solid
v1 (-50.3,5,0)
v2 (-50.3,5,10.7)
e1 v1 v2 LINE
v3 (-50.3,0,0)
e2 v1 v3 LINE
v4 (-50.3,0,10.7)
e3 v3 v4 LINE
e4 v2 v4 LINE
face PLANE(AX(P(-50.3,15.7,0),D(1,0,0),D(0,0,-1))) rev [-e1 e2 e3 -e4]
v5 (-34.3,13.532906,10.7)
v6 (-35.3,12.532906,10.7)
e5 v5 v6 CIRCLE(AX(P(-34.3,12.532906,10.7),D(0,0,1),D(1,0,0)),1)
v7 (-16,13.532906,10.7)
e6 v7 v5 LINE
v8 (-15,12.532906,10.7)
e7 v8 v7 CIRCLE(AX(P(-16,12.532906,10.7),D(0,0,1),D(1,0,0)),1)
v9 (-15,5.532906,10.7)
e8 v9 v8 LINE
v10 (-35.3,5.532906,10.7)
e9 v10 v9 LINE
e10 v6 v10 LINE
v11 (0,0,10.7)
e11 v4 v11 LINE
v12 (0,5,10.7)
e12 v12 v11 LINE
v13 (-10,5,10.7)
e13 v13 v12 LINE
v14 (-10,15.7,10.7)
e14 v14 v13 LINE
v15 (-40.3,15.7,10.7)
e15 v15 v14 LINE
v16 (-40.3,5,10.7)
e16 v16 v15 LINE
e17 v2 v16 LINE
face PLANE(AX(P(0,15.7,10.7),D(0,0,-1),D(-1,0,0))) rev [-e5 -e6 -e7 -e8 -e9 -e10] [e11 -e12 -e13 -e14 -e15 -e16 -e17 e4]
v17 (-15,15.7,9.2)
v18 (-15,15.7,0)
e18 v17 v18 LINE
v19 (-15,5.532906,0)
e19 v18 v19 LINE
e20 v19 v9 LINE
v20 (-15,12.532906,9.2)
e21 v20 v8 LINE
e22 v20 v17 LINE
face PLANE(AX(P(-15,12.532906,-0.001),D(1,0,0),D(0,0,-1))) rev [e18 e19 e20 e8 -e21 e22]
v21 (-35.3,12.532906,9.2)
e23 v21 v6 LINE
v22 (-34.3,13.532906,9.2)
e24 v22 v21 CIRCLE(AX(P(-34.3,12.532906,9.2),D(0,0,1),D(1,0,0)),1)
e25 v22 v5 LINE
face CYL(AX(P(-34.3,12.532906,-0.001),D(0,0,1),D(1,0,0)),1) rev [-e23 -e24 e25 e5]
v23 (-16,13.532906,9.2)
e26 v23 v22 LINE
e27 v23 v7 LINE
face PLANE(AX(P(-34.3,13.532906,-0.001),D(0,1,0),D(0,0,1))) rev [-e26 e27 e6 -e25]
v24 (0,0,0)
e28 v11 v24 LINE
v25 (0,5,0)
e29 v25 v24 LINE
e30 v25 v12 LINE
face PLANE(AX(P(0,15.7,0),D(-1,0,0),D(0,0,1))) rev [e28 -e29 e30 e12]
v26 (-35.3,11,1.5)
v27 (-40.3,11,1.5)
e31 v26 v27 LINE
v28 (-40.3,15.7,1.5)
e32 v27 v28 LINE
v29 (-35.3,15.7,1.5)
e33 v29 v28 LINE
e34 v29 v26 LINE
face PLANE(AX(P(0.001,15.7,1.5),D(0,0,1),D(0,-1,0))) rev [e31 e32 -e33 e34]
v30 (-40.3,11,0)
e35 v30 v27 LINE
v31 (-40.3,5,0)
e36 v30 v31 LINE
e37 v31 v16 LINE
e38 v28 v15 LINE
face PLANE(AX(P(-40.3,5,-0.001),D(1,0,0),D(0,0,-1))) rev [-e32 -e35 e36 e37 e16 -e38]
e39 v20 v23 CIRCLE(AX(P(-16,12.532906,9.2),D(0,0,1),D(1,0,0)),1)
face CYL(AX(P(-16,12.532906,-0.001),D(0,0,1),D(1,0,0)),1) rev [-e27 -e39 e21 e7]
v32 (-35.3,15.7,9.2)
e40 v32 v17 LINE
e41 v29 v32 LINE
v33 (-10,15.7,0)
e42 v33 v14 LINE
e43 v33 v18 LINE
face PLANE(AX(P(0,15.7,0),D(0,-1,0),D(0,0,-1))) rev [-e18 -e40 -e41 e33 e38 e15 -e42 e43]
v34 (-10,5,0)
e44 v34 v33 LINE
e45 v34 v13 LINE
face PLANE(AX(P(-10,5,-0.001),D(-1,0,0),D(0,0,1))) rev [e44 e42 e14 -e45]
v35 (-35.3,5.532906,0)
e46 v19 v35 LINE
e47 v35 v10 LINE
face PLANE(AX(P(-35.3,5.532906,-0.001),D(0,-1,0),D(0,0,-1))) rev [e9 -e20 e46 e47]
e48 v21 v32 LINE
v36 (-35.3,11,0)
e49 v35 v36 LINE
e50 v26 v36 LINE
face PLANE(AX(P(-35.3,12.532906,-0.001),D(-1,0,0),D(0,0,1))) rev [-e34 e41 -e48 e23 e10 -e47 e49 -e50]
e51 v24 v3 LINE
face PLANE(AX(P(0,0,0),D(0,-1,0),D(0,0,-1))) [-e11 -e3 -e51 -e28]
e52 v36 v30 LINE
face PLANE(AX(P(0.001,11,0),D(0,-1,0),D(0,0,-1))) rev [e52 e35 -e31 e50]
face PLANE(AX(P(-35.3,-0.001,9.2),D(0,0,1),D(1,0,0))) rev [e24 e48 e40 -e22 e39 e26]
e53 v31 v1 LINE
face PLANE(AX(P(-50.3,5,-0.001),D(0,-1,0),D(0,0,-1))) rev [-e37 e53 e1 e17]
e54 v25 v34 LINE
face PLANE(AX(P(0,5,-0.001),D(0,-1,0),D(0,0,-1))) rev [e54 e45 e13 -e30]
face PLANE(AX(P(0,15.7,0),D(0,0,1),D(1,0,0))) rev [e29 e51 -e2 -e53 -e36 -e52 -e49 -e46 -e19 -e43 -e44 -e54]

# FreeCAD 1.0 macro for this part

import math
import FreeCAD as App
import Part
import Sketcher

V = App.Vector


def add_polygon(sketch, points):
    """Adds a closed chain of lines whose ends are joined by coincident constraints."""
    first, n = sketch.GeometryCount, len(points)
    for a, b in zip(points, points[1:] + points[:1]):
        sketch.addGeometry(Part.LineSegment(App.Vector(*a, 0), App.Vector(*b, 0)), False)
    for i in range(n):
        sketch.addConstraint(Sketcher.Constraint("Coincident", first + i, 2, first + (i + 1) % n, 1))

doc = App.newDocument("Part")
body = doc.addObject("PartDesign::Body", "Body")

sketch1 = body.newObject("Sketcher::SketchObject", "Sketch")
sketch1.AttachmentSupport = (doc.getObject("XZ_Plane"), [""])
sketch1.MapMode = "FlatFace"
add_polygon(sketch1, [(-50.3, 0), (-50.3, 10.7), (0, 10.7), (0, 0)])
sketch1.addConstraint([
    Sketcher.Constraint("Vertical", 0),
    Sketcher.Constraint("Horizontal", 1),
    Sketcher.Constraint("Vertical", 2),
    Sketcher.Constraint("Horizontal", 3),
    Sketcher.Constraint("Coincident", 2, 2, -1, 1),
    Sketcher.Constraint("DistanceX", 1, 1, 1, 2, 50.3),
    Sketcher.Constraint("DistanceY", 0, 1, 0, 2, 10.7),
])
pad1 = body.newObject("PartDesign::Pad", "Pad")
pad1.Profile = sketch1
pad1.Length = 15.7
pad1.Reversed = True

sketch2 = body.newObject("Sketcher::SketchObject", "Sketch001")
sketch2.AttachmentSupport = (doc.getObject("XY_Plane"), [""])
sketch2.MapMode = "FlatFace"
sketch2.AttachmentOffset = App.Placement(V(0, 0, 10.7), App.Rotation())
add_polygon(sketch2, [(-50.3, 15.7), (-50.3, 5), (-40.3, 5), (-40.3, 15.7)])
sketch2.addConstraint([
    Sketcher.Constraint("Vertical", 0),
    Sketcher.Constraint("Horizontal", 1),
    Sketcher.Constraint("Vertical", 2),
    Sketcher.Constraint("Horizontal", 3),
    Sketcher.Constraint("DistanceX", 1, 1, 1, 2, 10.0),
    Sketcher.Constraint("DistanceY", 0, 2, 0, 1, 10.7),
    Sketcher.Constraint("DistanceY", -1, 1, 0, 2, 5.0),
    Sketcher.Constraint("DistanceX", 0, 2, -1, 1, 50.3),
])
pocket1 = body.newObject("PartDesign::Pocket", "Pocket")
pocket1.Profile = sketch2
pocket1.Type = "UpToFirst"

sketch3 = body.newObject("Sketcher::SketchObject", "Sketch002")
sketch3.AttachmentSupport = (doc.getObject("XY_Plane"), [""])
sketch3.MapMode = "FlatFace"
sketch3.AttachmentOffset = App.Placement(V(0, 0, 10.7), App.Rotation())
sketch3.addGeometry([
    Part.LineSegment(V(-35.3, 5.532906, 0), V(-15, 5.532906, 0)),
    Part.LineSegment(V(-15, 5.532906, 0), V(-15, 12.532906, 0)),
    Part.ArcOfCircle(Part.Circle(V(-16, 12.532906, 0), V(0, 0, 1), 1), math.radians(0), math.radians(90)),
    Part.LineSegment(V(-16, 13.532906, 0), V(-34.3, 13.532906, 0)),
    Part.ArcOfCircle(Part.Circle(V(-34.3, 12.532906, 0), V(0, 0, 1), 1), math.radians(90), math.radians(180)),
    Part.LineSegment(V(-35.3, 12.532906, 0), V(-35.3, 5.532906, 0)),
], False)
sketch3.addConstraint([
    Sketcher.Constraint("Coincident", 0, 2, 1, 1),
    Sketcher.Constraint("Tangent", 1, 2, 2, 1),
    Sketcher.Constraint("Tangent", 2, 2, 3, 1),
    Sketcher.Constraint("Tangent", 3, 2, 4, 1),
    Sketcher.Constraint("Tangent", 4, 2, 5, 1),
    Sketcher.Constraint("Coincident", 5, 2, 0, 1),
    Sketcher.Constraint("Horizontal", 0),
    Sketcher.Constraint("Vertical", 1),
    Sketcher.Constraint("Horizontal", 3),
    Sketcher.Constraint("Vertical", 5),
    Sketcher.Constraint("Equal", 2, 4),
    Sketcher.Constraint("Radius", 2, 1.0),
    Sketcher.Constraint("DistanceY", 1, 1, 1, 2, 7.0),
    Sketcher.Constraint("DistanceX", 0, 1, 0, 2, 20.3),
    Sketcher.Constraint("DistanceX", 2, 3, -1, 1, 16.0),
    Sketcher.Constraint("DistanceY", -1, 1, 2, 3, 12.532906),
])
pocket2 = body.newObject("PartDesign::Pocket", "Pocket001")
pocket2.Profile = sketch3
pocket2.Type = "UpToFirst"

sketch4 = body.newObject("Sketcher::SketchObject", "Sketch003")
sketch4.AttachmentSupport = (doc.getObject("XY_Plane"), [""])
sketch4.MapMode = "FlatFace"
sketch4.AttachmentOffset = App.Placement(V(0, 0, 10.7), App.Rotation())
add_polygon(sketch4, [(-10, 15.7), (-10, 5), (0, 5), (0, 15.7)])
sketch4.addConstraint([
    Sketcher.Constraint("Vertical", 0),
    Sketcher.Constraint("Horizontal", 1),
    Sketcher.Constraint("Vertical", 2),
    Sketcher.Constraint("Horizontal", 3),
    Sketcher.Constraint("PointOnObject", 1, 2, -2),
    Sketcher.Constraint("DistanceX", 1, 1, 1, 2, 10.0),
    Sketcher.Constraint("DistanceY", 0, 2, 0, 1, 10.7),
    Sketcher.Constraint("DistanceY", -1, 1, 0, 2, 5.0),
])
pocket3 = body.newObject("PartDesign::Pocket", "Pocket002")
pocket3.Profile = sketch4
pocket3.Type = "UpToFirst"

sketch5 = body.newObject("Sketcher::SketchObject", "Sketch004")
sketch5.AttachmentSupport = (doc.getObject("XZ_Plane"), [""])
sketch5.MapMode = "FlatFace"
sketch5.AttachmentOffset = App.Placement(V(0, 0, -15.7), App.Rotation())
add_polygon(sketch5, [(-35.3, 0), (-35.3, 9.2), (-15, 9.2), (-15, 0)])
sketch5.addConstraint([
    Sketcher.Constraint("Vertical", 0),
    Sketcher.Constraint("Horizontal", 1),
    Sketcher.Constraint("Vertical", 2),
    Sketcher.Constraint("Horizontal", 3),
    Sketcher.Constraint("PointOnObject", 2, 2, -1),
    Sketcher.Constraint("DistanceX", 1, 1, 1, 2, 20.3),
    Sketcher.Constraint("DistanceY", 0, 1, 0, 2, 9.2),
    Sketcher.Constraint("DistanceX", 1, 2, -1, 1, 15.0),
])
pocket4 = body.newObject("PartDesign::Pocket", "Pocket003")
pocket4.Profile = sketch5
pocket4.Length = 3.167094
pocket4.Reversed = True

sketch6 = body.newObject("Sketcher::SketchObject", "Sketch005")
sketch6.AttachmentSupport = (doc.getObject("YZ_Plane"), [""])
sketch6.MapMode = "FlatFace"
sketch6.AttachmentOffset = App.Placement(V(0, 0, -40.3), App.Rotation())
add_polygon(sketch6, [(15.7, 0), (11, 0), (11, 1.5), (15.7, 1.5)])
sketch6.addConstraint([
    Sketcher.Constraint("Horizontal", 0),
    Sketcher.Constraint("Vertical", 1),
    Sketcher.Constraint("Horizontal", 2),
    Sketcher.Constraint("Vertical", 3),
    Sketcher.Constraint("PointOnObject", 0, 2, -1),
    Sketcher.Constraint("DistanceX", 0, 2, 0, 1, 4.7),
    Sketcher.Constraint("DistanceY", 1, 1, 1, 2, 1.5),
    Sketcher.Constraint("DistanceX", -1, 1, 0, 2, 11.0),
])
pocket5 = body.newObject("PartDesign::Pocket", "Pocket004")
pocket5.Profile = sketch6
pocket5.Type = "UpToFirst"
pocket5.Reversed = True

doc.recompute()
